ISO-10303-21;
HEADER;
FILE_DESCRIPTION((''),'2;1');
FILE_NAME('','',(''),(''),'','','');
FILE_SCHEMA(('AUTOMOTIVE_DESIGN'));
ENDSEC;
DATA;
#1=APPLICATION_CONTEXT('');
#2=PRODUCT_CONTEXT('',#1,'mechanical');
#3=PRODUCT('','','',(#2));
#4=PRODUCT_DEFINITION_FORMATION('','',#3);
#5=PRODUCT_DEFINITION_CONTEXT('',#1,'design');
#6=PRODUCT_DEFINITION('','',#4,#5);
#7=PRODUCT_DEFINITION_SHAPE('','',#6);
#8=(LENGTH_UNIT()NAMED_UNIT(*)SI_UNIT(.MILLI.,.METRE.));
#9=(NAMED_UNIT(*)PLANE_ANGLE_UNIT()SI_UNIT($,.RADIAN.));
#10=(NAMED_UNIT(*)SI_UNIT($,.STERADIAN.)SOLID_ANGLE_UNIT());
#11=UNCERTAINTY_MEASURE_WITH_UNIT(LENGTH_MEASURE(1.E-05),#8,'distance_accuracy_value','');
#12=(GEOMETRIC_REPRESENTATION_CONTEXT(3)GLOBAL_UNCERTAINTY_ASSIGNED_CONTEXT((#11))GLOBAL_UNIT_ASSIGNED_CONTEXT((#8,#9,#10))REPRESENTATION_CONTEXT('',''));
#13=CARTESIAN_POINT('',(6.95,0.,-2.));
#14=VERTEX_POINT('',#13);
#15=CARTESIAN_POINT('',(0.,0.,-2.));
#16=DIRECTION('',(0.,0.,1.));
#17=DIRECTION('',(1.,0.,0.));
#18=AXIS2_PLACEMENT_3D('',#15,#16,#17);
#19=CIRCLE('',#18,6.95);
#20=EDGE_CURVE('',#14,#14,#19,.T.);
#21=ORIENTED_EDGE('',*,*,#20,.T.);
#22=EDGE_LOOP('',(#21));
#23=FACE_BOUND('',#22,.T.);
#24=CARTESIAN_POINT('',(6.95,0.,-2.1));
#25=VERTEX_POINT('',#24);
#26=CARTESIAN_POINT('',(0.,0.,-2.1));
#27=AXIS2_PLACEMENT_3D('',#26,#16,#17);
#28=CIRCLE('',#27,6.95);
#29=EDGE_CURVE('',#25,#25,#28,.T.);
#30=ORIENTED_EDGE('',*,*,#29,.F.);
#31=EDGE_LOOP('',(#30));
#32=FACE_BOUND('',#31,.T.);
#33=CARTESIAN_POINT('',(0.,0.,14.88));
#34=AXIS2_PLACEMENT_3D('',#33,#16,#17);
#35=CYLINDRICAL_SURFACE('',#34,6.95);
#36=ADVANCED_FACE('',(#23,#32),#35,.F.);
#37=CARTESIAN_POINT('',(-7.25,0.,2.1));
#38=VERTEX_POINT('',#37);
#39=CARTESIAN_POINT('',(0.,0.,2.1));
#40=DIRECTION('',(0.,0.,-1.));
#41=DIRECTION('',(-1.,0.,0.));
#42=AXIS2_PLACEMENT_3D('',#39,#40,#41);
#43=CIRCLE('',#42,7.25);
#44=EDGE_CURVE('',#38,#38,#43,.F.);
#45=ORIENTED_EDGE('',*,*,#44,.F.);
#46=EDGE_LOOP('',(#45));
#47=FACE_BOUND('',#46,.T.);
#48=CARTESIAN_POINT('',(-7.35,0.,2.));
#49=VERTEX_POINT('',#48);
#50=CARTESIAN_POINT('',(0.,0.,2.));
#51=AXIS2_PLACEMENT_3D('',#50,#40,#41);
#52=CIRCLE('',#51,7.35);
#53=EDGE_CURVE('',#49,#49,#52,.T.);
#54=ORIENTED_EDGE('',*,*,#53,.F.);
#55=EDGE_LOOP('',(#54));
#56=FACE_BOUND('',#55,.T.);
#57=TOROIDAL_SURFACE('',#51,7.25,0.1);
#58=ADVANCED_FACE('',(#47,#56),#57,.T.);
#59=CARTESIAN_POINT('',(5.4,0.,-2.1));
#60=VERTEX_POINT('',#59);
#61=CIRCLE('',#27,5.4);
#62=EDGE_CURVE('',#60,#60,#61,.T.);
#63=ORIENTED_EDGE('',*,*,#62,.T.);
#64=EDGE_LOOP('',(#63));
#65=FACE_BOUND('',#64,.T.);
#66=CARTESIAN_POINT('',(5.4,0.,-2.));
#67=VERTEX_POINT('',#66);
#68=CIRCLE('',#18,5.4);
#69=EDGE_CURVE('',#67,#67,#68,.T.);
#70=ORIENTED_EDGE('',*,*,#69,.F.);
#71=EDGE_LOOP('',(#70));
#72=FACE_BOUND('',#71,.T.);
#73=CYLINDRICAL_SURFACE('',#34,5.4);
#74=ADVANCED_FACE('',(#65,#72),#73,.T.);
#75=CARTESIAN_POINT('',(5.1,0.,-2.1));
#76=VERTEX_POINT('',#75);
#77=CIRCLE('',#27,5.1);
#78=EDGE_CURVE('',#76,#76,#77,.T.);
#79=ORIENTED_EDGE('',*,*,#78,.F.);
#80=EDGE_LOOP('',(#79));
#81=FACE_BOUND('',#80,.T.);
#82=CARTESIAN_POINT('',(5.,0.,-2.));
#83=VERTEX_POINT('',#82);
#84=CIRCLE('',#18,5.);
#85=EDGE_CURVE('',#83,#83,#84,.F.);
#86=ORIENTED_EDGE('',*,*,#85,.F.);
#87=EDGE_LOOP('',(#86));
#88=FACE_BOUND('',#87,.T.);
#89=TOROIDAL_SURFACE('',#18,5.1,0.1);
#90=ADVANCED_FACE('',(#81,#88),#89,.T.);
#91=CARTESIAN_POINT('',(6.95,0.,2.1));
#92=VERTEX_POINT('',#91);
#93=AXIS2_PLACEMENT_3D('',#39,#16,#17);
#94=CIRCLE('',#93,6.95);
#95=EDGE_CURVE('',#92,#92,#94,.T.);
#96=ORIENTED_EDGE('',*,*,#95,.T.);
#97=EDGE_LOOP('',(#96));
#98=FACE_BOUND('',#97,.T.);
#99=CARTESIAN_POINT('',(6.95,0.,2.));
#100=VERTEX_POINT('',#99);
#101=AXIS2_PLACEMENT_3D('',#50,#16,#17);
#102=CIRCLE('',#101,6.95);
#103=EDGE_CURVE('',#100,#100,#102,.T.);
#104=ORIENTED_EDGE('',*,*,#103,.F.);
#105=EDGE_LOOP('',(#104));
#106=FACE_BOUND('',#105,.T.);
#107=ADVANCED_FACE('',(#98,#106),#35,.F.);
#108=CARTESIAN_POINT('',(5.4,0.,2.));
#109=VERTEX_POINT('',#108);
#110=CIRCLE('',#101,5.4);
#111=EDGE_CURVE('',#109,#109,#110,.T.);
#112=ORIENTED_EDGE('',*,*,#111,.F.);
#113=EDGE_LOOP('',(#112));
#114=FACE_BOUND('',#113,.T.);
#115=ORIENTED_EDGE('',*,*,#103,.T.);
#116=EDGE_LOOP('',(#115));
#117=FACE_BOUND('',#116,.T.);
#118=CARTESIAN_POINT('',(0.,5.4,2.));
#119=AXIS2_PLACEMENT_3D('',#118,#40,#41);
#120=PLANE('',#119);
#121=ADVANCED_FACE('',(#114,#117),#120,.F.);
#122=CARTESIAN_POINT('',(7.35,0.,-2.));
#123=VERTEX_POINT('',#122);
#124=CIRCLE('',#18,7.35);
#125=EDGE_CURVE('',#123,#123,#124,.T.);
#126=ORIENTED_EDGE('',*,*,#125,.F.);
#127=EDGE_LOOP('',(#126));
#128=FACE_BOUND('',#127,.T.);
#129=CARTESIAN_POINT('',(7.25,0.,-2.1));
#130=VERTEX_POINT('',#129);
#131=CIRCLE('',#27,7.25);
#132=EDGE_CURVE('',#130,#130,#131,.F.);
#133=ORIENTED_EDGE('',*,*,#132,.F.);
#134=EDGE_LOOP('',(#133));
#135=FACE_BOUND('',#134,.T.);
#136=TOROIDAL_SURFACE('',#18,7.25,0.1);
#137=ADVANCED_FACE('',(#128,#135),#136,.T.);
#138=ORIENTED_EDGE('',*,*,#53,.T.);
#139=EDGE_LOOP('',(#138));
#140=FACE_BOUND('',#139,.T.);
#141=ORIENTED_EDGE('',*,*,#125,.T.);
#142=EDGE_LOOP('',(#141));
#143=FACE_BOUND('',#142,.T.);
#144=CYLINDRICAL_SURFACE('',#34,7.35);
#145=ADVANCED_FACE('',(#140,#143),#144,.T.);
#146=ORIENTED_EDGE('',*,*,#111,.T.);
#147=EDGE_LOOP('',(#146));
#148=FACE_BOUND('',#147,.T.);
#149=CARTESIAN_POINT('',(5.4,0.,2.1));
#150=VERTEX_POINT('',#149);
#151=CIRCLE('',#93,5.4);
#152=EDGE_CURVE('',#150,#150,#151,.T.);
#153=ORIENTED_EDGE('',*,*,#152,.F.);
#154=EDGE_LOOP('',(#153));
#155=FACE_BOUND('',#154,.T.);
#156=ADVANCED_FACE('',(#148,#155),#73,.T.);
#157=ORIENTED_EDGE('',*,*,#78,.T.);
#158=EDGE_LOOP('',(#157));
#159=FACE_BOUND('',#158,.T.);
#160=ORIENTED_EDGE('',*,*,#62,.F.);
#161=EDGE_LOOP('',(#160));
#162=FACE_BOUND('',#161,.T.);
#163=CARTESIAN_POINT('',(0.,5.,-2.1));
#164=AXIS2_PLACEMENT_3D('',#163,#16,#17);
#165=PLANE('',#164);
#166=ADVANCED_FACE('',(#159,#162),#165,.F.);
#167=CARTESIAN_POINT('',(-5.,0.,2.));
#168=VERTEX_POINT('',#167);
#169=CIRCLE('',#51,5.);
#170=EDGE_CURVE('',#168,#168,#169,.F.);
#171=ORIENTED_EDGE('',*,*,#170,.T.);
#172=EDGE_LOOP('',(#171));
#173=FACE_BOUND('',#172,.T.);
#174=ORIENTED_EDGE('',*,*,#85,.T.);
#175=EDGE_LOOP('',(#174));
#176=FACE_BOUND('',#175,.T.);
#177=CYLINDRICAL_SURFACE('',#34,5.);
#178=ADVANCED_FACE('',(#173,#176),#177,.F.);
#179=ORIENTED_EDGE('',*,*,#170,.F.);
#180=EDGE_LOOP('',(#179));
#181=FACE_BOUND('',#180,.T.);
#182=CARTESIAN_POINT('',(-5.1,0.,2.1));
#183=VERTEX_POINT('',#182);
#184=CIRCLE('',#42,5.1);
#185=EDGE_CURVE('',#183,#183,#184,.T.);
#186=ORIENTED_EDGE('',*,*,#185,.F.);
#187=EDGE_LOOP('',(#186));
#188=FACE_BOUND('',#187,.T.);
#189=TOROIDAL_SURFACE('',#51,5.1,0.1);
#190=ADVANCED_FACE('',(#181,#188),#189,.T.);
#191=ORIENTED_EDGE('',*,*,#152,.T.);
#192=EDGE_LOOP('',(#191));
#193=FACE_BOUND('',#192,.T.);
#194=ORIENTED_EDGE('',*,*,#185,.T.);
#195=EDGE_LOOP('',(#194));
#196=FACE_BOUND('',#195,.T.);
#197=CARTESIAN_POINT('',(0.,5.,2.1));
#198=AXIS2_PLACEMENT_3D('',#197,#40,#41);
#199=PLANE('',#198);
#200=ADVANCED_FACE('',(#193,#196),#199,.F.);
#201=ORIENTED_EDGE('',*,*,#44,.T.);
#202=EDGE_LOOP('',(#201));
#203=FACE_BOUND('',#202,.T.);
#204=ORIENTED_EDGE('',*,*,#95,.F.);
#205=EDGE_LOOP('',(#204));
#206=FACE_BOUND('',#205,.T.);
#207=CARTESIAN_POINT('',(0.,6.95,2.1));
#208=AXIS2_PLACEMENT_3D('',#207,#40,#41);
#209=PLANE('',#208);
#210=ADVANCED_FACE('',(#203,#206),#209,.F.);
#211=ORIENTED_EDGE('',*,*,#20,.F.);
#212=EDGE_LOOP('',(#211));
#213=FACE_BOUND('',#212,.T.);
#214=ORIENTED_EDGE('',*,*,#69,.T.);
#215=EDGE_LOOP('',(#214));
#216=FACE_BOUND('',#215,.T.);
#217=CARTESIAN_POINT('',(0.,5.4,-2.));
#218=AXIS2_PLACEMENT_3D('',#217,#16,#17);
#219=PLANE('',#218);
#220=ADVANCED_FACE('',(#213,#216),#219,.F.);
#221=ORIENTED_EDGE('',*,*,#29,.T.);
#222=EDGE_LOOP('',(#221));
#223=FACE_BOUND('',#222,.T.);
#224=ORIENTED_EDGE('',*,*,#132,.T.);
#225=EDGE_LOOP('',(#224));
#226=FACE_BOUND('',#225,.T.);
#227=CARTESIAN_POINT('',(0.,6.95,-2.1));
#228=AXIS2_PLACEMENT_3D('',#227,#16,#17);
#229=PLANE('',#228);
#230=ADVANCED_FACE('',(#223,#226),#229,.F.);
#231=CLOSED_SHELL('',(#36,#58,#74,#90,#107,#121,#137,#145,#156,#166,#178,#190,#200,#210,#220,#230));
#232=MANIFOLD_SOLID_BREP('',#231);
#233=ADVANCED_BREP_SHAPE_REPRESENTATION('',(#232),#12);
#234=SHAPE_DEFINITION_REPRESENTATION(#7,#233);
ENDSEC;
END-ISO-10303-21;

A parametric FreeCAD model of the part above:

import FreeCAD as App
import Part
import Sketcher

V = App.Vector


def edges_at(feature, points):
    """Names of the edges that pass closest to the given points."""
    edges = feature.Shape.Edges
    near = lambda p: min(range(len(edges)), key=lambda i: edges[i].distToShape(Part.Vertex(*p))[0])
    return sorted({f"Edge{near(p) + 1}" for p in points})

doc = App.newDocument("Part")
body = doc.addObject("PartDesign::Body", "Body")

sketch1 = body.newObject("Sketcher::SketchObject", "Sketch")
sketch1.AttachmentSupport = (doc.getObject("YZ_Plane"), [""])
sketch1.MapMode = "FlatFace"
sketch1.addGeometry([
    Part.LineSegment(V(5.4, 2.1, 0), V(5, 2.1, 0)),
    Part.LineSegment(V(5, 2.1, 0), V(5, -2.1, 0)),
    Part.LineSegment(V(5, -2.1, 0), V(5.4, -2.1, 0)),
    Part.LineSegment(V(5.4, -2.1, 0), V(5.4, -2, 0)),
    Part.LineSegment(V(5.4, -2, 0), V(6.95, -2, 0)),
    Part.LineSegment(V(6.95, -2, 0), V(6.95, -2.1, 0)),
    Part.LineSegment(V(6.95, -2.1, 0), V(7.35, -2.1, 0)),
    Part.LineSegment(V(7.35, -2.1, 0), V(7.35, 2.1, 0)),
    Part.LineSegment(V(7.35, 2.1, 0), V(6.95, 2.1, 0)),
    Part.LineSegment(V(6.95, 2.1, 0), V(6.95, 2, 0)),
    Part.LineSegment(V(6.95, 2, 0), V(5.4, 2, 0)),
    Part.LineSegment(V(5.4, 2, 0), V(5.4, 2.1, 0)),
], False)
sketch1.addConstraint([
    Sketcher.Constraint("Coincident", 0, 2, 1, 1),
    Sketcher.Constraint("Coincident", 1, 2, 2, 1),
    Sketcher.Constraint("Coincident", 2, 2, 3, 1),
    Sketcher.Constraint("Coincident", 3, 2, 4, 1),
    Sketcher.Constraint("Coincident", 4, 2, 5, 1),
    Sketcher.Constraint("Coincident", 5, 2, 6, 1),
    Sketcher.Constraint("Coincident", 6, 2, 7, 1),
    Sketcher.Constraint("Coincident", 7, 2, 8, 1),
    Sketcher.Constraint("Coincident", 8, 2, 9, 1),
    Sketcher.Constraint("Coincident", 9, 2, 10, 1),
    Sketcher.Constraint("Coincident", 10, 2, 11, 1),
    Sketcher.Constraint("Coincident", 11, 2, 0, 1),
    Sketcher.Constraint("Horizontal", 0),
    Sketcher.Constraint("Vertical", 1),
    Sketcher.Constraint("Horizontal", 2),
    Sketcher.Constraint("Vertical", 3),
    Sketcher.Constraint("Horizontal", 4),
    Sketcher.Constraint("Vertical", 5),
    Sketcher.Constraint("Horizontal", 6),
    Sketcher.Constraint("Vertical", 7),
    Sketcher.Constraint("Horizontal", 8),
    Sketcher.Constraint("Vertical", 9),
    Sketcher.Constraint("Horizontal", 10),
    Sketcher.Constraint("Vertical", 11),
    Sketcher.Constraint("Symmetric", 5, 2, 8, 2, -1),
    Sketcher.Constraint("Symmetric", 3, 2, 10, 2, -1),
    Sketcher.Constraint("Horizontal", 2, 2, 5, 2),
    Sketcher.Constraint("Horizontal", 0, 2, 7, 2),
    Sketcher.Constraint("Equal", 2, 6),
    Sketcher.Constraint("DistanceX", 0, 2, 0, 1, 0.4),
    Sketcher.Constraint("DistanceY", 1, 2, 1, 1, 4.2),
    Sketcher.Constraint("DistanceY", 3, 1, 3, 2, 0.1),
    Sketcher.Constraint("DistanceX", -1, 1, 0, 2, 5.0),
    Sketcher.Constraint("DistanceX", 4, 1, 4, 2, 1.55),
])
revolution = body.newObject("PartDesign::Revolution", "Revolution")
revolution.Profile = sketch1
revolution.ReferenceAxis = (sketch1, ["V_Axis"])
revolution.Angle = 360
doc.recompute()

fillet = body.newObject("PartDesign::Fillet", "Fillet")
fillet.Base = (revolution, edges_at(revolution, [
    (-7.35, 0, 2.1),
    (-7.35, 0, -2.1),
    (-5, 0, -2.1),
    (-5, 0, 2.1),
]))
fillet.Radius = 0.1

doc.recompute()
